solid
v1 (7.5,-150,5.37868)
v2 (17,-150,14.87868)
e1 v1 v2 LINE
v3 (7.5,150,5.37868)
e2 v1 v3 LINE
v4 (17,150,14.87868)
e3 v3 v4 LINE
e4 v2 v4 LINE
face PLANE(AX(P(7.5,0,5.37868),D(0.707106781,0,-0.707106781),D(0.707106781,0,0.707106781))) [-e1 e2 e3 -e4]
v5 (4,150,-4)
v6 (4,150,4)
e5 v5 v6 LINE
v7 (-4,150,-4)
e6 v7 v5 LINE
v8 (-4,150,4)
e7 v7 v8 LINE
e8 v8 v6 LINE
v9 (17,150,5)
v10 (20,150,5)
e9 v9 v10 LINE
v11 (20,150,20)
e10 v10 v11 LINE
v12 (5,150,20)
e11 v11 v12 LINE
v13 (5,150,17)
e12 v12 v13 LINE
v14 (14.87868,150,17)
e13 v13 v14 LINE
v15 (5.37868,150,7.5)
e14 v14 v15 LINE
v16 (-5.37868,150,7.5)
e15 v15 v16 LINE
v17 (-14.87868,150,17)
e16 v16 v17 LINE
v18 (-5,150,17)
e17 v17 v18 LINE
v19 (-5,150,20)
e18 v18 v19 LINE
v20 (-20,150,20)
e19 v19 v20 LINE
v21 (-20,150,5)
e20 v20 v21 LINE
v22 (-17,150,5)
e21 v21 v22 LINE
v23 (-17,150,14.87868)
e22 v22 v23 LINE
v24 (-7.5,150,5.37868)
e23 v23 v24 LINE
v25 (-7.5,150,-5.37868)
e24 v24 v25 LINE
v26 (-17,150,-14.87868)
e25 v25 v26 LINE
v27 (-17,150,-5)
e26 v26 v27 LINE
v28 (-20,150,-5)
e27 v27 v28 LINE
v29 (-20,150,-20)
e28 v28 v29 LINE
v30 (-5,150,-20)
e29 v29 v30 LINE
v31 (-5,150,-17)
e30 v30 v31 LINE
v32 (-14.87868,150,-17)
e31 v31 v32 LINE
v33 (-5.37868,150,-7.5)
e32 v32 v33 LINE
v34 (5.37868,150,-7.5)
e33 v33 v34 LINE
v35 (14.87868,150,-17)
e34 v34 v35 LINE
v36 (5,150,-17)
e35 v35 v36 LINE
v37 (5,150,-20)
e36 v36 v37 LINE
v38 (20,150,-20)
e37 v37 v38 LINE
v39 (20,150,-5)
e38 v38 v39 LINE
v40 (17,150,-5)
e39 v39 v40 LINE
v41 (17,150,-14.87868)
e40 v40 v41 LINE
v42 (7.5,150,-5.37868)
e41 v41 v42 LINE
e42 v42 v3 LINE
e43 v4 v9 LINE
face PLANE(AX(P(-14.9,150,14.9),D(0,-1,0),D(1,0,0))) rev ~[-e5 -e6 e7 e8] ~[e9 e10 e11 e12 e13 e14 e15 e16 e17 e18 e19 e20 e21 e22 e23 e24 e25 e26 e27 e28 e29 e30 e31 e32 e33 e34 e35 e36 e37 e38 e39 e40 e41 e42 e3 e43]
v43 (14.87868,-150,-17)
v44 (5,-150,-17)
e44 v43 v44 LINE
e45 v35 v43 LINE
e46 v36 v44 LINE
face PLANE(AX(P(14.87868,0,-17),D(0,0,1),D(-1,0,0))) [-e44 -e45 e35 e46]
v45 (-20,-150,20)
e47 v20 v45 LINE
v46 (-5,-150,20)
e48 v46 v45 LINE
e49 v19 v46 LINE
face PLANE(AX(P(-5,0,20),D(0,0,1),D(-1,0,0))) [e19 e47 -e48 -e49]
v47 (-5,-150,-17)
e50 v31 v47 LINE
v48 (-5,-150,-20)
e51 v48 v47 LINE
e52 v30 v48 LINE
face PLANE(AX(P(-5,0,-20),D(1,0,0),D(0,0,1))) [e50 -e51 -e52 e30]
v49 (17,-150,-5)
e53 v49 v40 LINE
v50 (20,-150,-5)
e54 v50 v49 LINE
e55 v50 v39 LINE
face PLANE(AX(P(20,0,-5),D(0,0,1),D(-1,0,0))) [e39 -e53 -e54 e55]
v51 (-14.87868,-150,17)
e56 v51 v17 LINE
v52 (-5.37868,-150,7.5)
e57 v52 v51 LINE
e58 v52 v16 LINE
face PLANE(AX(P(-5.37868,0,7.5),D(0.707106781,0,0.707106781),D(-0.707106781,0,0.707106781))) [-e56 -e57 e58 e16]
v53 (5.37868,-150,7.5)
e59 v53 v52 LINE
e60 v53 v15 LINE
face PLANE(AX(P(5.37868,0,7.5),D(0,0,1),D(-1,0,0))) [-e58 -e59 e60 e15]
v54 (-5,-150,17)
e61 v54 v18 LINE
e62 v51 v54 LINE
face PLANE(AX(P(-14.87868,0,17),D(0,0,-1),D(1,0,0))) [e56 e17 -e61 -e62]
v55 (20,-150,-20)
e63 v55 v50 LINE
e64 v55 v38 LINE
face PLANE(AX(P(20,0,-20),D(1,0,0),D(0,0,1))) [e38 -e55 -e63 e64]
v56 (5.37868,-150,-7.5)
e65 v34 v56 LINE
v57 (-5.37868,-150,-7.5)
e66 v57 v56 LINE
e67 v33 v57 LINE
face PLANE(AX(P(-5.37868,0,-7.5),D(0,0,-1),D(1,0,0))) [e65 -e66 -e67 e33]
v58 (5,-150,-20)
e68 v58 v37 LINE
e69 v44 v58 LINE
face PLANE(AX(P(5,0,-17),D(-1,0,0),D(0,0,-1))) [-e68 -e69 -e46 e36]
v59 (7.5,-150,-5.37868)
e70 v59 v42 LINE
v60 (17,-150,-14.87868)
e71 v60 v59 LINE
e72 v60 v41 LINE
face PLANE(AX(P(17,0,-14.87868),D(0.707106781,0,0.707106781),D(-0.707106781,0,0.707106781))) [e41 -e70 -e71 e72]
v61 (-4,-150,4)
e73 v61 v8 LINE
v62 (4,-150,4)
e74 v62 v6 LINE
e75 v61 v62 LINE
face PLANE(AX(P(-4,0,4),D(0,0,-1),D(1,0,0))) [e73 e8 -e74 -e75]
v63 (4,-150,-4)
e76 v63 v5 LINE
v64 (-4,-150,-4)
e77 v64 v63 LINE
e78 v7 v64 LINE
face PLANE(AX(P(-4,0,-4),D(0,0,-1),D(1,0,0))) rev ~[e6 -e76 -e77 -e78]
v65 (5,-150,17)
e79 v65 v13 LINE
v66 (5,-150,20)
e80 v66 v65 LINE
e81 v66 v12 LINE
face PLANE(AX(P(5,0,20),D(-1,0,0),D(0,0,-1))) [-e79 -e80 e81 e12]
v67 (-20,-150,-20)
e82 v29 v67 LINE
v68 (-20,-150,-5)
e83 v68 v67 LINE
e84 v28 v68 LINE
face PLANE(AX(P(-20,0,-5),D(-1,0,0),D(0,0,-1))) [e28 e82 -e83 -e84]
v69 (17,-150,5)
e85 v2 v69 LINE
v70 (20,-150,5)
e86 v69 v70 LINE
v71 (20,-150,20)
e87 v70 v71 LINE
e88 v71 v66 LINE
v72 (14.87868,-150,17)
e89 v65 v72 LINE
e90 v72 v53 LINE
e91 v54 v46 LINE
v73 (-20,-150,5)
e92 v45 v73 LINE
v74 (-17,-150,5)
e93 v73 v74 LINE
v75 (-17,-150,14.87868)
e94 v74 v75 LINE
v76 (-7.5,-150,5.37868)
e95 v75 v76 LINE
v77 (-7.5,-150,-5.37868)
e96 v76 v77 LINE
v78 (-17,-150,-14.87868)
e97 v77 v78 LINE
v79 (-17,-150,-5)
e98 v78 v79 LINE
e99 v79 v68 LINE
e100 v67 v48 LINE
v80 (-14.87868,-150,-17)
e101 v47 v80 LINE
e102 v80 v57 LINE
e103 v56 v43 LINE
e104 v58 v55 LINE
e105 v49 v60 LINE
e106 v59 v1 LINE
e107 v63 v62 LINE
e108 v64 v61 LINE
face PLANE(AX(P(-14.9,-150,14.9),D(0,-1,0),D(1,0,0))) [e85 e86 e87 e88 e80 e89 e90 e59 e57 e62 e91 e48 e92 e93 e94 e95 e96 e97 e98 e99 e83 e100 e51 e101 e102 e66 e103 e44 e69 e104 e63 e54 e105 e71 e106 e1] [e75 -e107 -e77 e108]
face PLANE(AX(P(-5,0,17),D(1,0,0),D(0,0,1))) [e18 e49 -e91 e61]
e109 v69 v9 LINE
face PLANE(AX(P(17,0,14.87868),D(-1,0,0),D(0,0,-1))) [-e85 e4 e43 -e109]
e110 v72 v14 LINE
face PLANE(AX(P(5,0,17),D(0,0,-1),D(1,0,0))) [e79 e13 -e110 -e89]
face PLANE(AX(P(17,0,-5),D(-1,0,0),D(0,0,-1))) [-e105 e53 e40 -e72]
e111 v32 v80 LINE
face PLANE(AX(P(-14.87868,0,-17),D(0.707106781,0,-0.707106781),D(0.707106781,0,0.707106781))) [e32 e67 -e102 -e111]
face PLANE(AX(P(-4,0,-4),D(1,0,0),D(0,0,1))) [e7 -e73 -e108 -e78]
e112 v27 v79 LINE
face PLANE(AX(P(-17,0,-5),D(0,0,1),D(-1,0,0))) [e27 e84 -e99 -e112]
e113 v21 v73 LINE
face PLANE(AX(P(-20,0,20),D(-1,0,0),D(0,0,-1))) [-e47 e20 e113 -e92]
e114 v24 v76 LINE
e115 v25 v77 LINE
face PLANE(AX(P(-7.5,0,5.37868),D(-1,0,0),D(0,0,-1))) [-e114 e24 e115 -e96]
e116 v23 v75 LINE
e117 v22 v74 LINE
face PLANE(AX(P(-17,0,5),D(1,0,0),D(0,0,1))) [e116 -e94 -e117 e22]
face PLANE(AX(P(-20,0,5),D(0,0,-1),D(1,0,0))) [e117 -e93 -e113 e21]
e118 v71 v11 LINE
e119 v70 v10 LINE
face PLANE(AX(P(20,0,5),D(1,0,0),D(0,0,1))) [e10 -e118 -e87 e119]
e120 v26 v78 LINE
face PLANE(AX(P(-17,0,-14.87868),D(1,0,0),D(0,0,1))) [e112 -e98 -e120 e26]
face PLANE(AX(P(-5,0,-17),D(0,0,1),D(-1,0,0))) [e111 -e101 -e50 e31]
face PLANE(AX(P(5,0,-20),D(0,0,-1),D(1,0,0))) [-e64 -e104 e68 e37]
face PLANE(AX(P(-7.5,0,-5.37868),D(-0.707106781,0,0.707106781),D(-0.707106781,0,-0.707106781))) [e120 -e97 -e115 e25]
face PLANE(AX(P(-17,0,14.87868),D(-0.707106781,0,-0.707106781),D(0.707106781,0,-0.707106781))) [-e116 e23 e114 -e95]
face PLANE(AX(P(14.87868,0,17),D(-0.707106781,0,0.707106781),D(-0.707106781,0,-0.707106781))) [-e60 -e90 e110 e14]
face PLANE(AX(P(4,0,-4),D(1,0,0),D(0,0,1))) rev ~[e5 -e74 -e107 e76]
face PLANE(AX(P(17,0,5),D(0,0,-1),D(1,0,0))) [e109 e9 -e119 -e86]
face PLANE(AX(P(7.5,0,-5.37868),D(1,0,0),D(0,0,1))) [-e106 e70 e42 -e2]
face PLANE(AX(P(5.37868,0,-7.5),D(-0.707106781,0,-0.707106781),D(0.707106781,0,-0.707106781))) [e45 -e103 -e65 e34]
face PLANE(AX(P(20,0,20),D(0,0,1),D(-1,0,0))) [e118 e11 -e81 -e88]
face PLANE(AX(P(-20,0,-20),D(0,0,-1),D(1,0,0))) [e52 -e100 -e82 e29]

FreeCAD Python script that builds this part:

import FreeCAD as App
import Part
import Sketcher

doc = App.newDocument("Part")
body = doc.addObject("PartDesign::Body", "Body")

# Sketch on XZ plane
sketch1 = body.newObject("Sketcher::SketchObject", "Sketch")
sketch1.AttachmentSupport = (doc.getObject("XZ_Plane"), [""])
sketch1.MapMode = "FlatFace"
sketch1.addGeometry(Part.LineSegment(App.Vector(-5, 17, 0), App.Vector(-5, 20, 0)), False)
sketch1.addGeometry(Part.LineSegment(App.Vector(-5, 20, 0), App.Vector(-20, 20, 0)), False)
sketch1.addGeometry(Part.LineSegment(App.Vector(-20, 20, 0), App.Vector(-20, 5, 0)), False)
sketch1.addGeometry(Part.LineSegment(App.Vector(-20, 5, 0), App.Vector(-17, 5, 0)), False)
sketch1.addGeometry(Part.LineSegment(App.Vector(-17, 5, 0), App.Vector(-17, 14.87868, 0)), False)
sketch1.addGeometry(Part.LineSegment(App.Vector(-17, 14.87868, 0), App.Vector(-7.5, 5.37868, 0)), False)
sketch1.addGeometry(Part.LineSegment(App.Vector(-7.5, 5.37868, 0), App.Vector(-7.5, -5.37868, 0)), False)
sketch1.addGeometry(Part.LineSegment(App.Vector(-7.5, -5.37868, 0), App.Vector(-17, -14.87868, 0)), False)
sketch1.addGeometry(Part.LineSegment(App.Vector(-17, -14.87868, 0), App.Vector(-17, -5, 0)), False)
sketch1.addGeometry(Part.LineSegment(App.Vector(-17, -5, 0), App.Vector(-20, -5, 0)), False)
sketch1.addGeometry(Part.LineSegment(App.Vector(-20, -5, 0), App.Vector(-20, -20, 0)), False)
sketch1.addGeometry(Part.LineSegment(App.Vector(-20, -20, 0), App.Vector(-5, -20, 0)), False)
sketch1.addGeometry(Part.LineSegment(App.Vector(-5, -20, 0), App.Vector(-5, -17, 0)), False)
sketch1.addGeometry(Part.LineSegment(App.Vector(-5, -17, 0), App.Vector(-14.87868, -17, 0)), False)
sketch1.addGeometry(Part.LineSegment(App.Vector(-14.87868, -17, 0), App.Vector(-5.37868, -7.5, 0)), False)
sketch1.addGeometry(Part.LineSegment(App.Vector(-5.37868, -7.5, 0), App.Vector(5.37868, -7.5, 0)), False)
sketch1.addGeometry(Part.LineSegment(App.Vector(5.37868, -7.5, 0), App.Vector(14.87868, -17, 0)), False)
sketch1.addGeometry(Part.LineSegment(App.Vector(14.87868, -17, 0), App.Vector(5, -17, 0)), False)
sketch1.addGeometry(Part.LineSegment(App.Vector(5, -17, 0), App.Vector(5, -20, 0)), False)
sketch1.addGeometry(Part.LineSegment(App.Vector(5, -20, 0), App.Vector(20, -20, 0)), False)
sketch1.addGeometry(Part.LineSegment(App.Vector(20, -20, 0), App.Vector(20, -5, 0)), False)
sketch1.addGeometry(Part.LineSegment(App.Vector(20, -5, 0), App.Vector(17, -5, 0)), False)
sketch1.addGeometry(Part.LineSegment(App.Vector(17, -5, 0), App.Vector(17, -14.87868, 0)), False)
sketch1.addGeometry(Part.LineSegment(App.Vector(17, -14.87868, 0), App.Vector(7.5, -5.37868, 0)), False)
sketch1.addGeometry(Part.LineSegment(App.Vector(7.5, -5.37868, 0), App.Vector(7.5, 5.37868, 0)), False)
sketch1.addGeometry(Part.LineSegment(App.Vector(7.5, 5.37868, 0), App.Vector(17, 14.87868, 0)), False)
sketch1.addGeometry(Part.LineSegment(App.Vector(17, 14.87868, 0), App.Vector(17, 5, 0)), False)
sketch1.addGeometry(Part.LineSegment(App.Vector(17, 5, 0), App.Vector(20, 5, 0)), False)
sketch1.addGeometry(Part.LineSegment(App.Vector(20, 5, 0), App.Vector(20, 20, 0)), False)
sketch1.addGeometry(Part.LineSegment(App.Vector(20, 20, 0), App.Vector(5, 20, 0)), False)
sketch1.addGeometry(Part.LineSegment(App.Vector(5, 20, 0), App.Vector(5, 17, 0)), False)
sketch1.addGeometry(Part.LineSegment(App.Vector(5, 17, 0), App.Vector(14.87868, 17, 0)), False)
sketch1.addGeometry(Part.LineSegment(App.Vector(14.87868, 17, 0), App.Vector(5.37868, 7.5, 0)), False)
sketch1.addGeometry(Part.LineSegment(App.Vector(5.37868, 7.5, 0), App.Vector(-5.37868, 7.5, 0)), False)
sketch1.addGeometry(Part.LineSegment(App.Vector(-5.37868, 7.5, 0), App.Vector(-14.87868, 17, 0)), False)
sketch1.addGeometry(Part.LineSegment(App.Vector(-14.87868, 17, 0), App.Vector(-5, 17, 0)), False)
sketch1.addGeometry(Part.LineSegment(App.Vector(4, -4, 0), App.Vector(-4, -4, 0)), False)
sketch1.addGeometry(Part.LineSegment(App.Vector(-4, -4, 0), App.Vector(-4, 4, 0)), False)
sketch1.addGeometry(Part.LineSegment(App.Vector(-4, 4, 0), App.Vector(4, 4, 0)), False)
sketch1.addGeometry(Part.LineSegment(App.Vector(4, 4, 0), App.Vector(4, -4, 0)), False)
sketch1.addConstraint(Sketcher.Constraint("Coincident", 0, 2, 1, 1))
sketch1.addConstraint(Sketcher.Constraint("Coincident", 1, 2, 2, 1))
sketch1.addConstraint(Sketcher.Constraint("Coincident", 2, 2, 3, 1))
sketch1.addConstraint(Sketcher.Constraint("Coincident", 3, 2, 4, 1))
sketch1.addConstraint(Sketcher.Constraint("Coincident", 4, 2, 5, 1))
sketch1.addConstraint(Sketcher.Constraint("Coincident", 5, 2, 6, 1))
sketch1.addConstraint(Sketcher.Constraint("Coincident", 6, 2, 7, 1))
sketch1.addConstraint(Sketcher.Constraint("Coincident", 7, 2, 8, 1))
sketch1.addConstraint(Sketcher.Constraint("Coincident", 8, 2, 9, 1))
sketch1.addConstraint(Sketcher.Constraint("Coincident", 9, 2, 10, 1))
sketch1.addConstraint(Sketcher.Constraint("Coincident", 10, 2, 11, 1))
sketch1.addConstraint(Sketcher.Constraint("Coincident", 11, 2, 12, 1))
sketch1.addConstraint(Sketcher.Constraint("Coincident", 12, 2, 13, 1))
sketch1.addConstraint(Sketcher.Constraint("Coincident", 13, 2, 14, 1))
sketch1.addConstraint(Sketcher.Constraint("Coincident", 14, 2, 15, 1))
sketch1.addConstraint(Sketcher.Constraint("Coincident", 15, 2, 16, 1))
sketch1.addConstraint(Sketcher.Constraint("Coincident", 16, 2, 17, 1))
sketch1.addConstraint(Sketcher.Constraint("Coincident", 17, 2, 18, 1))
sketch1.addConstraint(Sketcher.Constraint("Coincident", 18, 2, 19, 1))
sketch1.addConstraint(Sketcher.Constraint("Coincident", 19, 2, 20, 1))
sketch1.addConstraint(Sketcher.Constraint("Coincident", 20, 2, 21, 1))
sketch1.addConstraint(Sketcher.Constraint("Coincident", 21, 2, 22, 1))
sketch1.addConstraint(Sketcher.Constraint("Coincident", 22, 2, 23, 1))
sketch1.addConstraint(Sketcher.Constraint("Coincident", 23, 2, 24, 1))
sketch1.addConstraint(Sketcher.Constraint("Coincident", 24, 2, 25, 1))
sketch1.addConstraint(Sketcher.Constraint("Coincident", 25, 2, 26, 1))
sketch1.addConstraint(Sketcher.Constraint("Coincident", 26, 2, 27, 1))
sketch1.addConstraint(Sketcher.Constraint("Coincident", 27, 2, 28, 1))
sketch1.addConstraint(Sketcher.Constraint("Coincident", 28, 2, 29, 1))
sketch1.addConstraint(Sketcher.Constraint("Coincident", 29, 2, 30, 1))
sketch1.addConstraint(Sketcher.Constraint("Coincident", 30, 2, 31, 1))
sketch1.addConstraint(Sketcher.Constraint("Coincident", 31, 2, 32, 1))
sketch1.addConstraint(Sketcher.Constraint("Coincident", 32, 2, 33, 1))
sketch1.addConstraint(Sketcher.Constraint("Coincident", 33, 2, 34, 1))
sketch1.addConstraint(Sketcher.Constraint("Coincident", 34, 2, 35, 1))
sketch1.addConstraint(Sketcher.Constraint("Coincident", 35, 2, 0, 1))
sketch1.addConstraint(Sketcher.Constraint("Coincident", 36, 2, 37, 1))
sketch1.addConstraint(Sketcher.Constraint("Coincident", 37, 2, 38, 1))
sketch1.addConstraint(Sketcher.Constraint("Coincident", 38, 2, 39, 1))
sketch1.addConstraint(Sketcher.Constraint("Coincident", 39, 2, 36, 1))
sketch1.addConstraint(Sketcher.Constraint("Vertical", 0))
sketch1.addConstraint(Sketcher.Constraint("Horizontal", 1))
sketch1.addConstraint(Sketcher.Constraint("Vertical", 2))
sketch1.addConstraint(Sketcher.Constraint("Horizontal", 3))
sketch1.addConstraint(Sketcher.Constraint("Vertical", 4))
sketch1.addConstraint(Sketcher.Constraint("Vertical", 6))
sketch1.addConstraint(Sketcher.Constraint("Vertical", 8))
sketch1.addConstraint(Sketcher.Constraint("Horizontal", 9))
sketch1.addConstraint(Sketcher.Constraint("Vertical", 10))
sketch1.addConstraint(Sketcher.Constraint("Horizontal", 11))
sketch1.addConstraint(Sketcher.Constraint("Vertical", 12))
sketch1.addConstraint(Sketcher.Constraint("Horizontal", 13))
sketch1.addConstraint(Sketcher.Constraint("Horizontal", 15))
sketch1.addConstraint(Sketcher.Constraint("Horizontal", 17))
sketch1.addConstraint(Sketcher.Constraint("Vertical", 18))
sketch1.addConstraint(Sketcher.Constraint("Horizontal", 19))
sketch1.addConstraint(Sketcher.Constraint("Vertical", 20))
sketch1.addConstraint(Sketcher.Constraint("Horizontal", 21))
sketch1.addConstraint(Sketcher.Constraint("Vertical", 22))
sketch1.addConstraint(Sketcher.Constraint("Vertical", 24))
sketch1.addConstraint(Sketcher.Constraint("Vertical", 26))
sketch1.addConstraint(Sketcher.Constraint("Horizontal", 27))
sketch1.addConstraint(Sketcher.Constraint("Vertical", 28))
sketch1.addConstraint(Sketcher.Constraint("Horizontal", 29))
sketch1.addConstraint(Sketcher.Constraint("Vertical", 30))
sketch1.addConstraint(Sketcher.Constraint("Horizontal", 31))
sketch1.addConstraint(Sketcher.Constraint("Horizontal", 33))
sketch1.addConstraint(Sketcher.Constraint("Horizontal", 35))
sketch1.addConstraint(Sketcher.Constraint("Horizontal", 36))
sketch1.addConstraint(Sketcher.Constraint("Vertical", 37))
sketch1.addConstraint(Sketcher.Constraint("Horizontal", 38))
sketch1.addConstraint(Sketcher.Constraint("Vertical", 39))
sketch1.addConstraint(Sketcher.Constraint("Symmetric", 0, 2, 18, 2, -1, 1))
sketch1.addConstraint(Sketcher.Constraint("Symmetric", 2, 2, 20, 2, -1, 1))
sketch1.addConstraint(Sketcher.Constraint("Symmetric", 4, 2, 22, 2, -1, 1))
sketch1.addConstraint(Sketcher.Constraint("Symmetric", 5, 2, 23, 2, -1, 1))
sketch1.addConstraint(Sketcher.Constraint("Symmetric", 7, 2, 25, 2, -1, 1))
sketch1.addConstraint(Sketcher.Constraint("Symmetric", 9, 2, 27, 2, -1, 1))
sketch1.addConstraint(Sketcher.Constraint("Symmetric", 11, 2, 29, 2, -1, 1))
sketch1.addConstraint(Sketcher.Constraint("Symmetric", 13, 2, 31, 2, -1, 1))
sketch1.addConstraint(Sketcher.Constraint("Symmetric", 14, 2, 32, 2, -1, 1))
sketch1.addConstraint(Sketcher.Constraint("Symmetric", 16, 2, 34, 2, -1, 1))
sketch1.addConstraint(Sketcher.Constraint("Symmetric", 36, 2, 38, 2, -1, 1))
sketch1.addConstraint(Sketcher.Constraint("Symmetric", 13, 2, 16, 2, -2))
sketch1.addConstraint(Sketcher.Constraint("Symmetric", 11, 2, 18, 2, -2))
sketch1.addConstraint(Sketcher.Constraint("Symmetric", 9, 2, 20, 2, -2))
sketch1.addConstraint(Sketcher.Constraint("Symmetric", 7, 2, 22, 2, -2))
sketch1.addConstraint(Sketcher.Constraint("Perpendicular", 5, 7))
sketch1.addConstraint(Sketcher.Constraint("Parallel", 7, 14))
sketch1.addConstraint(Sketcher.Constraint("Perpendicular", 14, 16))
sketch1.addConstraint(Sketcher.Constraint("Perpendicular", 23, 25))
sketch1.addConstraint(Sketcher.Constraint("Perpendicular", 32, 34))
sketch1.addConstraint(Sketcher.Constraint("Horizontal", 6, 2, 23, 2))
sketch1.addConstraint(Sketcher.Constraint("Equal", 27, 0))
sketch1.addConstraint(Sketcher.Constraint("Equal", 29, 2))
sketch1.addConstraint(Sketcher.Constraint("Equal", 35, 4))
sketch1.addConstraint(Sketcher.Constraint("Equal", 33, 6))
sketch1.addConstraint(Sketcher.Constraint("Equal", 38, 37))
sketch1.addConstraint(Sketcher.Constraint("Equal", 7, 14))
sketch1.addConstraint(Sketcher.Constraint("DistanceX", 1, 2, 1, 1, 15.0))
sketch1.addConstraint(Sketcher.Constraint("DistanceX", 3, 1, 3, 2, 3.0))
sketch1.addConstraint(Sketcher.Constraint("DistanceX", 36, 2, 36, 1, 8.0))
sketch1.addConstraint(Sketcher.Constraint("DistanceX", 0, 2, -1, 1, 5.0))
sketch1.addConstraint(Sketcher.Constraint("DistanceX", 5, 2, 24, 2, 15.0))
sketch1.addConstraint(Sketcher.Constraint("DistanceX", 13, 2, 13, 1, 9.87868))
pad1 = body.newObject("PartDesign::Pad", "Pad")
pad1.Profile = sketch1
pad1.Length = 300
pad1.Midplane = True

doc.recompute()
